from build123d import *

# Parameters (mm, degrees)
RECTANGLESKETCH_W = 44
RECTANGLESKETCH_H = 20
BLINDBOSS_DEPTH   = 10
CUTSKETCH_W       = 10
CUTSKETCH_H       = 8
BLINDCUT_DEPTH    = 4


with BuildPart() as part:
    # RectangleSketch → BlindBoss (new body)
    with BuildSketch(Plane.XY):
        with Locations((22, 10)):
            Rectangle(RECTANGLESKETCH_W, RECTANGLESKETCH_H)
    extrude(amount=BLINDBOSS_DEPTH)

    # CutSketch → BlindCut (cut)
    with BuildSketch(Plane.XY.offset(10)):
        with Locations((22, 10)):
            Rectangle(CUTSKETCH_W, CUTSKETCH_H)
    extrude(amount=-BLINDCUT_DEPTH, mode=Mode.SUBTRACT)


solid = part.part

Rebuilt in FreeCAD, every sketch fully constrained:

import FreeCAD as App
import Part
import Sketcher


def add_polygon(sketch, points):
    """Adds a closed chain of lines whose ends are joined by coincident constraints."""
    first, n = sketch.GeometryCount, len(points)
    for a, b in zip(points, points[1:] + points[:1]):
        sketch.addGeometry(Part.LineSegment(App.Vector(*a, 0), App.Vector(*b, 0)), False)
    for i in range(n):
        sketch.addConstraint(Sketcher.Constraint("Coincident", first + i, 2, first + (i + 1) % n, 1))

doc = App.newDocument("Part")
body = doc.addObject("PartDesign::Body", "Body")

# Sketch on XY plane
sketch1 = body.newObject("Sketcher::SketchObject", "Sketch")
sketch1.AttachmentSupport = (doc.getObject("XY_Plane"), [""])
sketch1.MapMode = "FlatFace"
add_polygon(sketch1, [(0, 20), (0, 0), (44, 0), (44, 20)])  # lines 0-3
sketch1.addConstraint(Sketcher.Constraint("Vertical", 0))
sketch1.addConstraint(Sketcher.Constraint("Horizontal", 1))
sketch1.addConstraint(Sketcher.Constraint("Vertical", 2))
sketch1.addConstraint(Sketcher.Constraint("Horizontal", 3))
sketch1.addConstraint(Sketcher.Constraint("Coincident", 0, 2, -1, 1))
sketch1.addConstraint(Sketcher.Constraint("DistanceX", 1, 1, 1, 2, 44.0))
sketch1.addConstraint(Sketcher.Constraint("DistanceY", 0, 2, 0, 1, 20.0))
pad1 = body.newObject("PartDesign::Pad", "Pad")
pad1.Profile = sketch1
pad1.Length = 10

# Sketch on XY plane
sketch2 = body.newObject("Sketcher::SketchObject", "Sketch001")
sketch2.AttachmentSupport = (doc.getObject("XY_Plane"), [""])
sketch2.MapMode = "FlatFace"
sketch2.AttachmentOffset = App.Placement(App.Vector(0, 0, 10), App.Rotation())
add_polygon(sketch2, [(17, 14), (17, 6), (27, 6), (27, 14)])  # lines 0-3
sketch2.addConstraint(Sketcher.Constraint("Vertical", 0))
sketch2.addConstraint(Sketcher.Constraint("Horizontal", 1))
sketch2.addConstraint(Sketcher.Constraint("Vertical", 2))
sketch2.addConstraint(Sketcher.Constraint("Horizontal", 3))
sketch2.addConstraint(Sketcher.Constraint("DistanceX", 1, 1, 1, 2, 10.0))
sketch2.addConstraint(Sketcher.Constraint("DistanceY", 0, 2, 0, 1, 8.0))
sketch2.addConstraint(Sketcher.Constraint("DistanceX", -1, 1, 0, 2, 17.0))
sketch2.addConstraint(Sketcher.Constraint("DistanceY", -1, 1, 0, 2, 6.0))
pocket1 = body.newObject("PartDesign::Pocket", "Pocket")
pocket1.Profile = sketch2
pocket1.Length = 4

doc.recompute()
